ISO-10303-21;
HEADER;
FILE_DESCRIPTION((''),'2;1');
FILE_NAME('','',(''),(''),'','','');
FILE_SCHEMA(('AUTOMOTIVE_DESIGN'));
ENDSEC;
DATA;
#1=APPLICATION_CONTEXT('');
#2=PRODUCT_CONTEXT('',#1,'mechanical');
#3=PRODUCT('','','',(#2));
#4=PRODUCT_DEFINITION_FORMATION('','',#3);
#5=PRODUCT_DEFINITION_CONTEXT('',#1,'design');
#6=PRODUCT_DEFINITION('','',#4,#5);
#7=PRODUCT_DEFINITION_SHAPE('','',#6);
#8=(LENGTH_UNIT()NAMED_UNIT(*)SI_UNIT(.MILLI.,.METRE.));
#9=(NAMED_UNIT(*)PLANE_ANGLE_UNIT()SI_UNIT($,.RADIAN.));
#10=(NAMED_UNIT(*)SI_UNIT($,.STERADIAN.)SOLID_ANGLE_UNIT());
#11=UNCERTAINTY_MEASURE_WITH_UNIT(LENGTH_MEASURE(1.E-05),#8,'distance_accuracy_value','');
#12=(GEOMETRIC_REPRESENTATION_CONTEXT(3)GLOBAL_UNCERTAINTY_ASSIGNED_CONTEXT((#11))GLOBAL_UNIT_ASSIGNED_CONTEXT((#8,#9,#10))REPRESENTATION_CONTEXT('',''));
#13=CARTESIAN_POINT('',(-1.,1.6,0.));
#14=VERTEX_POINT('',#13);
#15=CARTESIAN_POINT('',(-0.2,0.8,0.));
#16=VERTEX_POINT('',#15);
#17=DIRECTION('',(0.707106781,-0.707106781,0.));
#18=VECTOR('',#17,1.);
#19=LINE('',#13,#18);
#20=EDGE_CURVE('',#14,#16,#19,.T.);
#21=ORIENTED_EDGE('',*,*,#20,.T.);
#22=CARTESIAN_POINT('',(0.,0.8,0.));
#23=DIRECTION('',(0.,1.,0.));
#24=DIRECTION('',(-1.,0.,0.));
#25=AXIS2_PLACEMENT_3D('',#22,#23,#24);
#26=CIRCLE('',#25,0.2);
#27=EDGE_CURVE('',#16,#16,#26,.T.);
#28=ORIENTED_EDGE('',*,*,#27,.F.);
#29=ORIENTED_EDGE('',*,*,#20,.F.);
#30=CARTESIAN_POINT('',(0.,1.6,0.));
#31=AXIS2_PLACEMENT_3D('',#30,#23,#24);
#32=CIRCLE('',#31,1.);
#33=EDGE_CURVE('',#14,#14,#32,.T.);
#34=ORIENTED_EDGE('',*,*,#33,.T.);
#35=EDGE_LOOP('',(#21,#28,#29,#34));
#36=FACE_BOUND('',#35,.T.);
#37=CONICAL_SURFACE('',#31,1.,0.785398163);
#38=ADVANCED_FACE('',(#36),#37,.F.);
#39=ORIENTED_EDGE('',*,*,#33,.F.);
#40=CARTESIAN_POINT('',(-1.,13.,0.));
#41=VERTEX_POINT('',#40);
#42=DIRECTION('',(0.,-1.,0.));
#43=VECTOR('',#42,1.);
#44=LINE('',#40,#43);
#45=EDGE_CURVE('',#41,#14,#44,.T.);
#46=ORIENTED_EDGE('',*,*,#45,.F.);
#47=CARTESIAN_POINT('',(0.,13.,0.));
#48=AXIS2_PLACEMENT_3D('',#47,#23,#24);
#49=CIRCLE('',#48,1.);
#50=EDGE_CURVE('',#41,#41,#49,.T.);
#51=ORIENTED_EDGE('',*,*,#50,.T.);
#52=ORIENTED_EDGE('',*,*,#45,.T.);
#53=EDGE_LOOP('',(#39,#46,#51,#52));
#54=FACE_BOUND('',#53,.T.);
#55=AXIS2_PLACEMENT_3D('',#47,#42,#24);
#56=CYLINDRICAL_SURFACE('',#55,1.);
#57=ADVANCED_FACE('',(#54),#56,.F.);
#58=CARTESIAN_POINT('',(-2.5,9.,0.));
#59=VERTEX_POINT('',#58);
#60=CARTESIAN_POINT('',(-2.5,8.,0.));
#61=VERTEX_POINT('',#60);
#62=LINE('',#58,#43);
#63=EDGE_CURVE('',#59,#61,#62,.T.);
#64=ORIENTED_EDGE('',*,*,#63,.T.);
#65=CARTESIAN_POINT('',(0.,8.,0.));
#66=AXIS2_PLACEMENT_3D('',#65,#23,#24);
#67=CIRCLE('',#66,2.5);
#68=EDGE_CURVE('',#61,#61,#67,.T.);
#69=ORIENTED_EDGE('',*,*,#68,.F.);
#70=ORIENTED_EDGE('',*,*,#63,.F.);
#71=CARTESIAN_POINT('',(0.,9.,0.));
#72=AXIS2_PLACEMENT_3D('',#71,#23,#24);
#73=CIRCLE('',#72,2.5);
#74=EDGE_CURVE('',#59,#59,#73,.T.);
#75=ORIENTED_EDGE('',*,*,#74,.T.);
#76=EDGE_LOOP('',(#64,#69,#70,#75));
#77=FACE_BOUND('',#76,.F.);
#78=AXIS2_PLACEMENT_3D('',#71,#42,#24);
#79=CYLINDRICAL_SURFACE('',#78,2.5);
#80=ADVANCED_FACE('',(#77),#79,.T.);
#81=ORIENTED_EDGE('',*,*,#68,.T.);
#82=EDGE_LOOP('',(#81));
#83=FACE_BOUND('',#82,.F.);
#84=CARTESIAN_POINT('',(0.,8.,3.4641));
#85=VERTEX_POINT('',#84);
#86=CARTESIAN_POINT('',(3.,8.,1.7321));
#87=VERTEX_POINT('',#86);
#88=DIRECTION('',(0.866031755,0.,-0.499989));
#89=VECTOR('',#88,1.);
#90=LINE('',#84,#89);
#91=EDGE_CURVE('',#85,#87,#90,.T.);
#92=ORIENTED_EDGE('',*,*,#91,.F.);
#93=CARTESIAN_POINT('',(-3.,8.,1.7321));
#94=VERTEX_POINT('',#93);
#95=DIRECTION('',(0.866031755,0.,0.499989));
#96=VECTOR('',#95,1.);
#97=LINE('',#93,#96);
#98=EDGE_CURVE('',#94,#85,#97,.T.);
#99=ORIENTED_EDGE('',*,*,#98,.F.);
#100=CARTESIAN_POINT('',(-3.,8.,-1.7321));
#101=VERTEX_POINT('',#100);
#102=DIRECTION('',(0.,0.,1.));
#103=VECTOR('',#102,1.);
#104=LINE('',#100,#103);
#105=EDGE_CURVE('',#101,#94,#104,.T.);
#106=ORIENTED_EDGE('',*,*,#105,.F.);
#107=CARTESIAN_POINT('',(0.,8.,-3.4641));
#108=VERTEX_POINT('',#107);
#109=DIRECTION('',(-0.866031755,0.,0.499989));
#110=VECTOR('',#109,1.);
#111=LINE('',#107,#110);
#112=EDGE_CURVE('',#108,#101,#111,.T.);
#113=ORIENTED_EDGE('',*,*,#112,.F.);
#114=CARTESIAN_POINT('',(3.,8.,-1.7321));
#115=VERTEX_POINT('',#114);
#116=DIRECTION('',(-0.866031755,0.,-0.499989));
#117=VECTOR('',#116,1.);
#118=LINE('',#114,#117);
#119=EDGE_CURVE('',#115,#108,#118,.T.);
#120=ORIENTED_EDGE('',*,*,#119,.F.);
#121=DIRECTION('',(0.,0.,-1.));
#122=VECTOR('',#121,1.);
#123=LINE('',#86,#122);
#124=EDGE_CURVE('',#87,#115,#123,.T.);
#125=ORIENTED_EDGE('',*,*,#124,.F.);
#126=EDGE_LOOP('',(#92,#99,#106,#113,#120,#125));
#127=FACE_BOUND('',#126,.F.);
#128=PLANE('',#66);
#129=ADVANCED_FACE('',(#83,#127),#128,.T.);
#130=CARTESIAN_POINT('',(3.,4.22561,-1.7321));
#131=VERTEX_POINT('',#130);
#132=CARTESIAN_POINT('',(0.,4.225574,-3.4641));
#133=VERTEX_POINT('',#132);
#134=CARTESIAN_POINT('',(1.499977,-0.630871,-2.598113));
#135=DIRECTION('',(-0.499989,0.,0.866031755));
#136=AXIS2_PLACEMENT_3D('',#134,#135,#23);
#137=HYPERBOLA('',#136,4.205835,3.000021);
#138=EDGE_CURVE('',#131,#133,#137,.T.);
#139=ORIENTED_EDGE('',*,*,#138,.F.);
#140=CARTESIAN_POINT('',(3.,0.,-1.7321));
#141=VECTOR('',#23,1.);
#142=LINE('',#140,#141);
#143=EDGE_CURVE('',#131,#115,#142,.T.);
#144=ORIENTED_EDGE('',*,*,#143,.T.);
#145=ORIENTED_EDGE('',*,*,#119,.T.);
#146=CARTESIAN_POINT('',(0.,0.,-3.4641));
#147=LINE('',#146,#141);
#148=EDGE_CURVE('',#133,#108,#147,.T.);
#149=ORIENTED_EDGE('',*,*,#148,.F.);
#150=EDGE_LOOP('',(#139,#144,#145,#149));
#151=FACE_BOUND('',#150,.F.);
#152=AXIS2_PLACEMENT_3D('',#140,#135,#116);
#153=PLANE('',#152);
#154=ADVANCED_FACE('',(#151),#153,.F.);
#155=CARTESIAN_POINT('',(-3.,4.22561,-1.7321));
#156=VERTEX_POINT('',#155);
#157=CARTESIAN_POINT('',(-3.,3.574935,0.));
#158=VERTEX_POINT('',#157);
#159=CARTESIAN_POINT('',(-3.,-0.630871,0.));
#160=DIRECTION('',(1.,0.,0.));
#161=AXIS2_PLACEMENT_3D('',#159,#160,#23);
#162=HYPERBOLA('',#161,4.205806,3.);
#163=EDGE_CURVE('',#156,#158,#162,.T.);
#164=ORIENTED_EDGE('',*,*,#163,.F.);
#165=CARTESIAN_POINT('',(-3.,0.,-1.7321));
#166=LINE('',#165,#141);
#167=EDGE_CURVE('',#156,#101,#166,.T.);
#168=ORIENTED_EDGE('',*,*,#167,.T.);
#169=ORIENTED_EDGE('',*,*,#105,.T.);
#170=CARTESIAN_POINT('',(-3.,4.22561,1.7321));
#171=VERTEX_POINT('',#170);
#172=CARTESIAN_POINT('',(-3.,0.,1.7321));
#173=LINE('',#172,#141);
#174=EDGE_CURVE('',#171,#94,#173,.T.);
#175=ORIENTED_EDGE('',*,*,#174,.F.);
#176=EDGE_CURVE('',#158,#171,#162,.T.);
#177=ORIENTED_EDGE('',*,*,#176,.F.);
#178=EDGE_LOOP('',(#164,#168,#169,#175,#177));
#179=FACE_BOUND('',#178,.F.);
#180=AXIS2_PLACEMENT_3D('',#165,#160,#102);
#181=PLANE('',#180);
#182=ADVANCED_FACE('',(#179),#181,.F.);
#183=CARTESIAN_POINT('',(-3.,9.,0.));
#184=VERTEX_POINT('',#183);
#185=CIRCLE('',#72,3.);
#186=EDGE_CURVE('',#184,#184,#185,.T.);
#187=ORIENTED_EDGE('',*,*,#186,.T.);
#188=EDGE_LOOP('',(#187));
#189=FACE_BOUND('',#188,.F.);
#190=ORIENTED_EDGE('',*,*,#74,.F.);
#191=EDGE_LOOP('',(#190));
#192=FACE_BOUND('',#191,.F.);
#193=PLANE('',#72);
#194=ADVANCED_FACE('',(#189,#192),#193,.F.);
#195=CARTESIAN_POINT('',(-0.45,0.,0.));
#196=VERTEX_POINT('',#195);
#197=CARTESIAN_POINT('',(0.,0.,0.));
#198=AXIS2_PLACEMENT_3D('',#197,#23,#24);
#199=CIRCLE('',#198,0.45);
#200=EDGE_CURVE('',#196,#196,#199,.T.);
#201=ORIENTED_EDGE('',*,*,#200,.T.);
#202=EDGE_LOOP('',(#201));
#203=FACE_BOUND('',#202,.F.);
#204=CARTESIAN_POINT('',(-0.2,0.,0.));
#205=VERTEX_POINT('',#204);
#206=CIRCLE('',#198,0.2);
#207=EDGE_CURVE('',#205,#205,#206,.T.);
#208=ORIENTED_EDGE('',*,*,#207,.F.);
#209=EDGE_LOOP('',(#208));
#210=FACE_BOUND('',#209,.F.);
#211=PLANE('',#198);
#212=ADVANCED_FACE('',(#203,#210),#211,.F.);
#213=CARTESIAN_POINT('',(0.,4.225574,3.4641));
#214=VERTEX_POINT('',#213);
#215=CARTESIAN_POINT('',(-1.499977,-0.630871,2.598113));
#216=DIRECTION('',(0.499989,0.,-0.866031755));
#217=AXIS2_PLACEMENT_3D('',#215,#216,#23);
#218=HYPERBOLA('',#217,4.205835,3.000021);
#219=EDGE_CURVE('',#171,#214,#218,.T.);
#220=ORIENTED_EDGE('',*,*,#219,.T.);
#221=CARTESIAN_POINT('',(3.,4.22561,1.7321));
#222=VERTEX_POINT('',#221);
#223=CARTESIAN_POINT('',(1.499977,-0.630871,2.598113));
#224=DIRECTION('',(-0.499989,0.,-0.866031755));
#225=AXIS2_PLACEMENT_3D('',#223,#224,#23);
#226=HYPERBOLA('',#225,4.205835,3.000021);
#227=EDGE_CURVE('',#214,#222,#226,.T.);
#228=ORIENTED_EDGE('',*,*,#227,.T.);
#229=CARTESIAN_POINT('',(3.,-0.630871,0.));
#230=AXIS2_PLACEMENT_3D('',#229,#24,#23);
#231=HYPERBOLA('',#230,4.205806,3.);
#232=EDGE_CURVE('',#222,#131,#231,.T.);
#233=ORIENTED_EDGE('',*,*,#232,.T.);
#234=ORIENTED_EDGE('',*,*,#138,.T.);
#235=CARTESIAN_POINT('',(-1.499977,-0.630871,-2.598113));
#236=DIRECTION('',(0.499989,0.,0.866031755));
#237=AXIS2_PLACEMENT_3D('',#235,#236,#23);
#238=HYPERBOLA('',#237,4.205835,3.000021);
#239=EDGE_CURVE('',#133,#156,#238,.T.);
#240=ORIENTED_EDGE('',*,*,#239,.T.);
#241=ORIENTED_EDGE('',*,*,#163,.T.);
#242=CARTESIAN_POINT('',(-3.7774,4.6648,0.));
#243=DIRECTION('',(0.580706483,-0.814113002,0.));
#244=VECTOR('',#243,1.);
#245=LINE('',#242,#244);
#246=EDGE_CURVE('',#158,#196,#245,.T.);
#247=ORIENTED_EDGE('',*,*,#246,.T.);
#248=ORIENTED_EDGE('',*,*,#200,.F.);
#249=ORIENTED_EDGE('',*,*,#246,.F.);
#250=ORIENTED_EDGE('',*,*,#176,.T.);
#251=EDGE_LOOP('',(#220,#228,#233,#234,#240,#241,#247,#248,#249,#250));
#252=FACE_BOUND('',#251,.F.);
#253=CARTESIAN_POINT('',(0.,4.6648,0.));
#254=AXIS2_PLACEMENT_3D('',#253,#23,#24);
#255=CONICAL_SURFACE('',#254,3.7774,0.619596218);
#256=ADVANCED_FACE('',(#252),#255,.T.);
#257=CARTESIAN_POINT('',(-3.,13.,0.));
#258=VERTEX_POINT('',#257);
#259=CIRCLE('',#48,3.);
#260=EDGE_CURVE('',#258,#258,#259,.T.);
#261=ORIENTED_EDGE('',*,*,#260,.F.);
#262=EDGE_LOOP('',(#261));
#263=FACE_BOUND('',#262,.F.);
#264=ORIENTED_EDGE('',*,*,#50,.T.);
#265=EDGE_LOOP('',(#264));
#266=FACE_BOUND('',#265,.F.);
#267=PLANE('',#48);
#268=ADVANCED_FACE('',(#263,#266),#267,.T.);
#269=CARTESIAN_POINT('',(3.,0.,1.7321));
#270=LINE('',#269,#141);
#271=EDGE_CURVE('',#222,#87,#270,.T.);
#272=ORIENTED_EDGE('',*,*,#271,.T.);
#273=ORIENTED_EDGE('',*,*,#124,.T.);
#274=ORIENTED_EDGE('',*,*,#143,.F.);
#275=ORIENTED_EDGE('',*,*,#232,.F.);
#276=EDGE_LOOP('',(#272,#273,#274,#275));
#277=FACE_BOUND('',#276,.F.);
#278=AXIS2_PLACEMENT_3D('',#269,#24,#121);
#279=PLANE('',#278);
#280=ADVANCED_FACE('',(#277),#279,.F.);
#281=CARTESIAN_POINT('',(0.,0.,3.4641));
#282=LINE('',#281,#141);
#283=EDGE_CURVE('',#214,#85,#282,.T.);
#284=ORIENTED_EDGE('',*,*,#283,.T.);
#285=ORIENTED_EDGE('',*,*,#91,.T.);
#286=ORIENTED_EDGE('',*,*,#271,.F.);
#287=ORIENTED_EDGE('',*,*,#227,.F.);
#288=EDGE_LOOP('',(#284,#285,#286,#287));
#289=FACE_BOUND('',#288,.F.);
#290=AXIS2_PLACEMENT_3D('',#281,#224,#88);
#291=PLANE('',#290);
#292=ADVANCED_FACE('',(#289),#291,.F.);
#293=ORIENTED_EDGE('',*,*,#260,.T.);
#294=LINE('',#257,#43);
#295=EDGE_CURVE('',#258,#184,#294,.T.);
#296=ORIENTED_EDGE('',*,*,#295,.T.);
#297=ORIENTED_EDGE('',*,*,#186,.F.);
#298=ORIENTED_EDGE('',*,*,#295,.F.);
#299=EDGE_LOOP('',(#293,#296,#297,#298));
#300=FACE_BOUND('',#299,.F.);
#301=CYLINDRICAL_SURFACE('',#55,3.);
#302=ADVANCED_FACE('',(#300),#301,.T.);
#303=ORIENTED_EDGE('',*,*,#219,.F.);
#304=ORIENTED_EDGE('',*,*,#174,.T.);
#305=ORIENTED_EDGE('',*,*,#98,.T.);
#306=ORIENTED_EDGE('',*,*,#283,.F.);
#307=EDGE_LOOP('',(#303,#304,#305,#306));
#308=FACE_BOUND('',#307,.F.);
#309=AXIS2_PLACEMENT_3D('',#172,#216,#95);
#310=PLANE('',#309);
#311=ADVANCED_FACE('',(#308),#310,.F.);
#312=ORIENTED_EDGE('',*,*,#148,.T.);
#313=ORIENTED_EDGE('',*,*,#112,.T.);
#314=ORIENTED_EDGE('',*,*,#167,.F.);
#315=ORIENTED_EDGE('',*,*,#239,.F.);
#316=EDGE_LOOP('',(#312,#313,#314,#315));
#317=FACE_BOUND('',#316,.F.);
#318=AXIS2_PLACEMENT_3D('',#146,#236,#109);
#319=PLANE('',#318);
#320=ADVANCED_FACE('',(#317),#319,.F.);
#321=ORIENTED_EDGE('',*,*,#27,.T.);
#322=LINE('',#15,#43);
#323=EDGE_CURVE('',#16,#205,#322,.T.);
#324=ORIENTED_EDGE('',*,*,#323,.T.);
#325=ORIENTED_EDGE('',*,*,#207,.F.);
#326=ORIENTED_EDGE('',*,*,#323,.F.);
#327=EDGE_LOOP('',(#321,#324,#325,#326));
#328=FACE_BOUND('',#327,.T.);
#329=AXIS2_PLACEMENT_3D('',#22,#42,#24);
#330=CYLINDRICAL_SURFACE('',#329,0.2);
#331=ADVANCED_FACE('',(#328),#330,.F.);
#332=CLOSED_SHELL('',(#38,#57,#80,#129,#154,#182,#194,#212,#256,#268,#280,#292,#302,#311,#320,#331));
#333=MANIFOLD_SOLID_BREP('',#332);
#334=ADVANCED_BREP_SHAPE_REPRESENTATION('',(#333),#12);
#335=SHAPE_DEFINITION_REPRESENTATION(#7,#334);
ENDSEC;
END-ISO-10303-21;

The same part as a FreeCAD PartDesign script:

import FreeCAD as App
import Part
import Sketcher
Q = App.Units.Quantity


def add_polygon(sketch, points):
    """Adds a closed chain of lines whose ends are joined by coincident constraints."""
    first, n = sketch.GeometryCount, len(points)
    for a, b in zip(points, points[1:] + points[:1]):
        sketch.addGeometry(Part.LineSegment(App.Vector(*a, 0), App.Vector(*b, 0)), False)
    for i in range(n):
        sketch.addConstraint(Sketcher.Constraint("Coincident", first + i, 2, first + (i + 1) % n, 1))

doc = App.newDocument("Part")
body = doc.addObject("PartDesign::Body", "Body")

# Sketch on XY plane
sketch1 = body.newObject("Sketcher::SketchObject", "Sketch")
sketch1.AttachmentSupport = (doc.getObject("XY_Plane"), [""])
sketch1.MapMode = "FlatFace"
add_polygon(sketch1, [(-1, 13), (-3, 13), (-3, 9), (-2.5, 9), (-2.5, 8), (-3.78, 8), (-3.78, 4.66), (-0.45, 0), (-0.2, 0), (-0.2, 0.8), (-1, 1.6)])  # lines 0-10
sketch1.addConstraint([
    Sketcher.Constraint("Horizontal", 0),
    Sketcher.Constraint("Vertical", 1),
    Sketcher.Constraint("Horizontal", 2),
    Sketcher.Constraint("Vertical", 3),
    Sketcher.Constraint("Horizontal", 4),
    Sketcher.Constraint("Vertical", 5),
    Sketcher.Constraint("Horizontal", 7),
    Sketcher.Constraint("Vertical", 8),
    Sketcher.Constraint("Vertical", 10),
    Sketcher.Constraint("PointOnObject", 6, 2, -1),
    Sketcher.Constraint("DistanceY", 3, 2, 3, 1, Q("1 mm")),
    Sketcher.Constraint("DistanceY", 8, 1, 8, 2, Q("0.8 mm")),
    Sketcher.Constraint("DistanceX", 0, 2, -1, 1, Q("3 mm")),
    Sketcher.Constraint("DistanceY", -1, 1, 0, 2, Q("13 mm")),
    Sketcher.Constraint("DistanceY", -1, 1, 1, 2, Q("9 mm")),
    Sketcher.Constraint("DistanceX", 9, 2, -1, 1, Q("1 mm")),
    Sketcher.Constraint("DistanceX", 2, 2, -1, 1, Q("2.5 mm")),
    Sketcher.Constraint("DistanceX", 7, 2, -1, 1, Q("0.2 mm")),
    Sketcher.Constraint("DistanceY", 8, 2, 9, 2, Q("0.8 mm")),
    Sketcher.Constraint("DistanceX", 6, 2, -1, 1, Q("0.45 mm")),
    Sketcher.Constraint("Angle", 6, Q("-54.4998 deg")),
    Sketcher.Constraint("DistanceX", 5, 2, 7, 2, Q("3.5774 mm")),
])
revolution = body.newObject("PartDesign::Revolution", "Revolution")
revolution.Profile = sketch1
revolution.ReferenceAxis = (sketch1, ["V_Axis"])
revolution.Angle = 360

# Sketch on XZ plane
sketch2 = body.newObject("Sketcher::SketchObject", "Sketch001")
sketch2.AttachmentSupport = (doc.getObject("XZ_Plane"), [""])
sketch2.MapMode = "FlatFace"
sketch2.addGeometry(Part.Circle(App.Vector(0, 0, 0), App.Vector(0, 0, 1), 5), False)  # 0
add_polygon(sketch2, [(3, 1.7), (3, -1.7), (0, -3.5), (-3, -1.7), (-3, 1.7), (0, 3.5)])  # lines 1-6
sketch2.addConstraint([
    Sketcher.Constraint("Vertical", 1),
    Sketcher.Constraint("Vertical", 4),
    Sketcher.Constraint("Coincident", 0, 3, -1, 1),
    Sketcher.Constraint("Symmetric", 1, 2, 4, 2, -1, 1),
    Sketcher.Constraint("Symmetric", 2, 2, 5, 2, -1, 1),
    Sketcher.Constraint("PointOnObject", 2, 2, -2),
    Sketcher.Constraint("Parallel", 3, 6),
    Sketcher.Constraint("Horizontal", 1, 2, 3, 2),
    Sketcher.Constraint("Diameter", 0, Q("10 mm")),
    Sketcher.Constraint("DistanceX", 3, 2, 1, 2, Q("6 mm")),
    Sketcher.Constraint("Angle", 2, Q("-150.0007 deg")),
    Sketcher.Constraint("DistanceY", 1, 2, 1, 1, Q("3.4642 mm")),
])
pocket1 = body.newObject("PartDesign::Pocket", "Pocket")
pocket1.Profile = sketch2
pocket1.Length = 8

doc.recompute()
